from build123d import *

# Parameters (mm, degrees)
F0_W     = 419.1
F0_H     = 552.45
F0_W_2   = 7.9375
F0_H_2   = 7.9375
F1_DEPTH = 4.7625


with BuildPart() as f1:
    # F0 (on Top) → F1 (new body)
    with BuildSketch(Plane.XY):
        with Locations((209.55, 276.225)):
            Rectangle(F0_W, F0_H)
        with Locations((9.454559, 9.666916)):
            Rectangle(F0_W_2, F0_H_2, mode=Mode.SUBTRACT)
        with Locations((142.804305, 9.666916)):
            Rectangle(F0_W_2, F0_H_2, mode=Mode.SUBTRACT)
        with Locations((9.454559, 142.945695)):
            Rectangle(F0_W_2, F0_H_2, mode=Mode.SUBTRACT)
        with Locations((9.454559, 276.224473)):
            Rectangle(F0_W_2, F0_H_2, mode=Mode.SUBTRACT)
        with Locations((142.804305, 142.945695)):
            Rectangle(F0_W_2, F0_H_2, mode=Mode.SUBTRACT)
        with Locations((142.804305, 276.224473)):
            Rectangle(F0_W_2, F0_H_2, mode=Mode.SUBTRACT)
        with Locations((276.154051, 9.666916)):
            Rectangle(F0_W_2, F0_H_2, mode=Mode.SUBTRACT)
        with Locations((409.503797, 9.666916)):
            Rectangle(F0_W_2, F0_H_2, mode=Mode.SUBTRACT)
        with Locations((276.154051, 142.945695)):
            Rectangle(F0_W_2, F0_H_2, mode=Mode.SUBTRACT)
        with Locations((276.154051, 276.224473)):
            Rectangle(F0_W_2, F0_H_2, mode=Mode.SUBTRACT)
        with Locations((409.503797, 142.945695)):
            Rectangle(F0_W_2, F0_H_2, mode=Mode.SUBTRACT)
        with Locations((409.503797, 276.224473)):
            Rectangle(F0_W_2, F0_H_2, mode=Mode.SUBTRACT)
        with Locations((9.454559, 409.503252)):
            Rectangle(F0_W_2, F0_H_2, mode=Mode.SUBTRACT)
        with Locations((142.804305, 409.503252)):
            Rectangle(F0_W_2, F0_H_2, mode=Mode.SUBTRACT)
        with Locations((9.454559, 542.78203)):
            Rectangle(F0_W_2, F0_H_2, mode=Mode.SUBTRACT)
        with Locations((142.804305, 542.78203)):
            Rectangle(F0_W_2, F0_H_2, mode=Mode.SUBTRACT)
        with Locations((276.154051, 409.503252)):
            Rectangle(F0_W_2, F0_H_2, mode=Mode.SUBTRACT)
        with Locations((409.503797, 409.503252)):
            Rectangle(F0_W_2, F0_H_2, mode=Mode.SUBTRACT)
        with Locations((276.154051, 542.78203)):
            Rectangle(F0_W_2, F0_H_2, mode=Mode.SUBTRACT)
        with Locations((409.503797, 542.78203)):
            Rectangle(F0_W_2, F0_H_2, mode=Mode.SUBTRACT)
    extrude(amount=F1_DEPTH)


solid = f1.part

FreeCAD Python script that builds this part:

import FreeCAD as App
import Part
import Sketcher

V = App.Vector
Q = App.Units.Quantity


def add_polygon(sketch, points):
    """Adds a closed chain of lines whose ends are joined by coincident constraints."""
    first, n = sketch.GeometryCount, len(points)
    for a, b in zip(points, points[1:] + points[:1]):
        sketch.addGeometry(Part.LineSegment(App.Vector(*a, 0), App.Vector(*b, 0)), False)
    for i in range(n):
        sketch.addConstraint(Sketcher.Constraint("Coincident", first + i, 2, first + (i + 1) % n, 1))

doc = App.newDocument("Part")
body = doc.addObject("PartDesign::Body", "Body")

sketch1 = body.newObject("Sketcher::SketchObject", "Sketch")
sketch1.AttachmentSupport = (doc.getObject("XY_Plane"), [""])
sketch1.MapMode = "FlatFace"
add_polygon(sketch1, [(0, 552), (0, 0), (419, 0), (419, 552)])
add_polygon(sketch1, [(13, 6), (5, 6), (5, 14), (13, 14)])
add_polygon(sketch1, [(147, 6), (139, 6), (139, 14), (147, 14)])
add_polygon(sketch1, [(13, 139), (5, 139), (5, 147), (13, 147)])
add_polygon(sketch1, [(147, 139), (139, 139), (139, 147), (147, 147)])
add_polygon(sketch1, [(280, 6), (272, 6), (272, 14), (280, 14)])
add_polygon(sketch1, [(413, 6), (406, 6), (406, 14), (413, 14)])
add_polygon(sketch1, [(280, 139), (272, 139), (272, 147), (280, 147)])
add_polygon(sketch1, [(413, 139), (406, 139), (406, 147), (413, 147)])
add_polygon(sketch1, [(13, 272), (5, 272), (5, 280), (13, 280)])
add_polygon(sketch1, [(13, 406), (5, 406), (5, 413), (13, 413)])
add_polygon(sketch1, [(147, 272), (139, 272), (139, 280), (147, 280)])
add_polygon(sketch1, [(147, 406), (139, 406), (139, 413), (147, 413)])
add_polygon(sketch1, [(13, 539), (5, 539), (5, 547), (13, 547)])
add_polygon(sketch1, [(147, 539), (139, 539), (139, 547), (147, 547)])
add_polygon(sketch1, [(280, 272), (272, 272), (272, 280), (280, 280)])
add_polygon(sketch1, [(280, 406), (272, 406), (272, 413), (280, 413)])
add_polygon(sketch1, [(413, 272), (406, 272), (406, 280), (413, 280)])
add_polygon(sketch1, [(413, 406), (406, 406), (406, 413), (413, 413)])
add_polygon(sketch1, [(280, 539), (272, 539), (272, 547), (280, 547)])
add_polygon(sketch1, [(413, 539), (406, 539), (406, 547), (413, 547)])
sketch1.addConstraint([
    Sketcher.Constraint("Vertical", 0),
    Sketcher.Constraint("Horizontal", 1),
    Sketcher.Constraint("Vertical", 2),
    Sketcher.Constraint("Horizontal", 3),
    Sketcher.Constraint("Horizontal", 4),
    Sketcher.Constraint("Vertical", 5),
    Sketcher.Constraint("Horizontal", 6),
    Sketcher.Constraint("Vertical", 7),
    Sketcher.Constraint("Horizontal", 8),
    Sketcher.Constraint("Vertical", 9),
    Sketcher.Constraint("Horizontal", 10),
    Sketcher.Constraint("Vertical", 11),
    Sketcher.Constraint("Horizontal", 12),
    Sketcher.Constraint("Vertical", 13),
    Sketcher.Constraint("Horizontal", 14),
    Sketcher.Constraint("Vertical", 15),
    Sketcher.Constraint("Horizontal", 16),
    Sketcher.Constraint("Vertical", 17),
    Sketcher.Constraint("Horizontal", 18),
    Sketcher.Constraint("Vertical", 19),
    Sketcher.Constraint("Horizontal", 20),
    Sketcher.Constraint("Vertical", 21),
    Sketcher.Constraint("Horizontal", 22),
    Sketcher.Constraint("Vertical", 23),
    Sketcher.Constraint("Horizontal", 24),
    Sketcher.Constraint("Vertical", 25),
    Sketcher.Constraint("Horizontal", 26),
    Sketcher.Constraint("Vertical", 27),
    Sketcher.Constraint("Horizontal", 28),
    Sketcher.Constraint("Vertical", 29),
    Sketcher.Constraint("Horizontal", 30),
    Sketcher.Constraint("Vertical", 31),
    Sketcher.Constraint("Horizontal", 32),
    Sketcher.Constraint("Vertical", 33),
    Sketcher.Constraint("Horizontal", 34),
    Sketcher.Constraint("Vertical", 35),
    Sketcher.Constraint("Horizontal", 36),
    Sketcher.Constraint("Vertical", 37),
    Sketcher.Constraint("Horizontal", 38),
    Sketcher.Constraint("Vertical", 39),
    Sketcher.Constraint("Horizontal", 40),
    Sketcher.Constraint("Vertical", 41),
    Sketcher.Constraint("Horizontal", 42),
    Sketcher.Constraint("Vertical", 43),
    Sketcher.Constraint("Horizontal", 44),
    Sketcher.Constraint("Vertical", 45),
    Sketcher.Constraint("Horizontal", 46),
    Sketcher.Constraint("Vertical", 47),
    Sketcher.Constraint("Horizontal", 48),
    Sketcher.Constraint("Vertical", 49),
    Sketcher.Constraint("Horizontal", 50),
    Sketcher.Constraint("Vertical", 51),
    Sketcher.Constraint("Horizontal", 52),
    Sketcher.Constraint("Vertical", 53),
    Sketcher.Constraint("Horizontal", 54),
    Sketcher.Constraint("Vertical", 55),
    Sketcher.Constraint("Horizontal", 56),
    Sketcher.Constraint("Vertical", 57),
    Sketcher.Constraint("Horizontal", 58),
    Sketcher.Constraint("Vertical", 59),
    Sketcher.Constraint("Horizontal", 60),
    Sketcher.Constraint("Vertical", 61),
    Sketcher.Constraint("Horizontal", 62),
    Sketcher.Constraint("Vertical", 63),
    Sketcher.Constraint("Horizontal", 64),
    Sketcher.Constraint("Vertical", 65),
    Sketcher.Constraint("Horizontal", 66),
    Sketcher.Constraint("Vertical", 67),
    Sketcher.Constraint("Horizontal", 68),
    Sketcher.Constraint("Vertical", 69),
    Sketcher.Constraint("Horizontal", 70),
    Sketcher.Constraint("Vertical", 71),
    Sketcher.Constraint("Horizontal", 72),
    Sketcher.Constraint("Vertical", 73),
    Sketcher.Constraint("Horizontal", 74),
    Sketcher.Constraint("Vertical", 75),
    Sketcher.Constraint("Horizontal", 76),
    Sketcher.Constraint("Vertical", 77),
    Sketcher.Constraint("Horizontal", 78),
    Sketcher.Constraint("Vertical", 79),
    Sketcher.Constraint("Horizontal", 80),
    Sketcher.Constraint("Vertical", 81),
    Sketcher.Constraint("Horizontal", 82),
    Sketcher.Constraint("Vertical", 83),
    Sketcher.Constraint("Coincident", 0, 2, -1, 1),
    Sketcher.Constraint("Horizontal", 7, 2, 8, 2),
    Sketcher.Constraint("Horizontal", 6, 2, 9, 2),
    Sketcher.Constraint("Horizontal", 15, 2, 16, 2),
    Sketcher.Constraint("Horizontal", 14, 2, 17, 2),
    Sketcher.Constraint("Horizontal", 11, 2, 20, 2),
    Sketcher.Constraint("Horizontal", 10, 2, 21, 2),
    Sketcher.Constraint("Horizontal", 23, 2, 24, 2),
    Sketcher.Constraint("Horizontal", 22, 2, 25, 2),
    Sketcher.Constraint("Horizontal", 19, 2, 28, 2),
    Sketcher.Constraint("Horizontal", 18, 2, 29, 2),
    Sketcher.Constraint("Horizontal", 31, 2, 32, 2),
    Sketcher.Constraint("Horizontal", 30, 2, 33, 2),
    Sketcher.Constraint("Horizontal", 39, 2, 44, 2),
    Sketcher.Constraint("Horizontal", 38, 2, 45, 2),
    Sketcher.Constraint("Horizontal", 43, 2, 48, 2),
    Sketcher.Constraint("Horizontal", 42, 2, 49, 2),
    Sketcher.Constraint("Horizontal", 55, 2, 56, 2),
    Sketcher.Constraint("Horizontal", 54, 2, 57, 2),
    Sketcher.Constraint("Horizontal", 47, 2, 60, 2),
    Sketcher.Constraint("Horizontal", 46, 2, 61, 2),
    Sketcher.Constraint("Horizontal", 51, 2, 64, 2),
    Sketcher.Constraint("Horizontal", 50, 2, 65, 2),
    Sketcher.Constraint("Horizontal", 63, 2, 68, 2),
    Sketcher.Constraint("Horizontal", 62, 2, 69, 2),
    Sketcher.Constraint("Horizontal", 67, 2, 72, 2),
    Sketcher.Constraint("Horizontal", 66, 2, 73, 2),
    Sketcher.Constraint("Horizontal", 59, 2, 76, 2),
    Sketcher.Constraint("Horizontal", 58, 2, 77, 2),
    Sketcher.Constraint("Horizontal", 79, 2, 80, 2),
    Sketcher.Constraint("Horizontal", 78, 2, 81, 2),
    Sketcher.Constraint("Vertical", 5, 2, 12, 2),
    Sketcher.Constraint("Vertical", 7, 2, 14, 2),
    Sketcher.Constraint("Vertical", 9, 2, 16, 2),
    Sketcher.Constraint("Vertical", 11, 2, 18, 2),
    Sketcher.Constraint("Vertical", 21, 2, 28, 2),
    Sketcher.Constraint("Vertical", 23, 2, 30, 2),
    Sketcher.Constraint("Vertical", 25, 2, 32, 2),
    Sketcher.Constraint("Vertical", 27, 2, 34, 2),
    Sketcher.Constraint("Vertical", 13, 2, 36, 2),
    Sketcher.Constraint("Vertical", 15, 2, 38, 2),
    Sketcher.Constraint("Vertical", 37, 2, 40, 2),
    Sketcher.Constraint("Vertical", 39, 2, 42, 2),
    Sketcher.Constraint("Vertical", 17, 2, 44, 2),
    Sketcher.Constraint("Vertical", 19, 2, 46, 2),
    Sketcher.Constraint("Vertical", 45, 2, 48, 2),
    Sketcher.Constraint("Vertical", 47, 2, 50, 2),
    Sketcher.Constraint("Vertical", 41, 2, 52, 2),
    Sketcher.Constraint("Vertical", 43, 2, 54, 2),
    Sketcher.Constraint("Vertical", 49, 2, 56, 2),
    Sketcher.Constraint("Vertical", 51, 2, 58, 2),
    Sketcher.Constraint("Vertical", 29, 2, 60, 2),
    Sketcher.Constraint("Vertical", 31, 2, 62, 2),
    Sketcher.Constraint("Vertical", 61, 2, 64, 2),
    Sketcher.Constraint("Vertical", 63, 2, 66, 2),
    Sketcher.Constraint("Vertical", 33, 2, 68, 2),
    Sketcher.Constraint("Vertical", 35, 2, 70, 2),
    Sketcher.Constraint("Vertical", 69, 2, 72, 2),
    Sketcher.Constraint("Vertical", 71, 2, 74, 2),
    Sketcher.Constraint("Vertical", 65, 2, 76, 2),
    Sketcher.Constraint("Vertical", 67, 2, 78, 2),
    Sketcher.Constraint("Vertical", 73, 2, 80, 2),
    Sketcher.Constraint("Vertical", 75, 2, 82, 2),
    Sketcher.Constraint("Equal", 6, 8),
    Sketcher.Constraint("Equal", 18, 20),
    Sketcher.Constraint("Equal", 22, 24),
    Sketcher.Constraint("Equal", 82, 5),
    Sketcher.Constraint("Equal", 11, 13),
    Sketcher.Constraint("Equal", 35, 37),
    Sketcher.Constraint("Equal", 39, 41),
    Sketcher.Constraint("Equal", 51, 53),
    Sketcher.Constraint("DistanceX", 1, 1, 1, 2, Q("16.5 in")),
    Sketcher.Constraint("DistanceY", 0, 2, 0, 1, Q("21.75 in")),
    Sketcher.Constraint("DistanceX", 4, 2, 4, 1, Q("0.3125 in")),
    Sketcher.Constraint("DistanceX", -1, 1, 20, 2, 272.185301),
    Sketcher.Constraint("DistanceY", -1, 1, 40, 2, 405.534502),
    Sketcher.Constraint("DistanceX", -1, 1, 4, 2, 5.485809),
    Sketcher.Constraint("DistanceY", -1, 1, 52, 2, 538.81328),
    Sketcher.Constraint("DistanceY", -1, 1, 4, 2, 5.698166),
    Sketcher.Constraint("DistanceX", -1, 1, 8, 2, 138.835555),
    Sketcher.Constraint("DistanceY", -1, 1, 12, 2, 138.976945),
    Sketcher.Constraint("DistanceX", -1, 1, 24, 2, 405.535047),
    Sketcher.Constraint("DistanceY", -1, 1, 36, 2, 272.255723),
])
pad1 = body.newObject("PartDesign::Pad", "Pad")
pad1.Profile = sketch1
pad1.Length = Q("0.1875 in")

doc.recompute()
